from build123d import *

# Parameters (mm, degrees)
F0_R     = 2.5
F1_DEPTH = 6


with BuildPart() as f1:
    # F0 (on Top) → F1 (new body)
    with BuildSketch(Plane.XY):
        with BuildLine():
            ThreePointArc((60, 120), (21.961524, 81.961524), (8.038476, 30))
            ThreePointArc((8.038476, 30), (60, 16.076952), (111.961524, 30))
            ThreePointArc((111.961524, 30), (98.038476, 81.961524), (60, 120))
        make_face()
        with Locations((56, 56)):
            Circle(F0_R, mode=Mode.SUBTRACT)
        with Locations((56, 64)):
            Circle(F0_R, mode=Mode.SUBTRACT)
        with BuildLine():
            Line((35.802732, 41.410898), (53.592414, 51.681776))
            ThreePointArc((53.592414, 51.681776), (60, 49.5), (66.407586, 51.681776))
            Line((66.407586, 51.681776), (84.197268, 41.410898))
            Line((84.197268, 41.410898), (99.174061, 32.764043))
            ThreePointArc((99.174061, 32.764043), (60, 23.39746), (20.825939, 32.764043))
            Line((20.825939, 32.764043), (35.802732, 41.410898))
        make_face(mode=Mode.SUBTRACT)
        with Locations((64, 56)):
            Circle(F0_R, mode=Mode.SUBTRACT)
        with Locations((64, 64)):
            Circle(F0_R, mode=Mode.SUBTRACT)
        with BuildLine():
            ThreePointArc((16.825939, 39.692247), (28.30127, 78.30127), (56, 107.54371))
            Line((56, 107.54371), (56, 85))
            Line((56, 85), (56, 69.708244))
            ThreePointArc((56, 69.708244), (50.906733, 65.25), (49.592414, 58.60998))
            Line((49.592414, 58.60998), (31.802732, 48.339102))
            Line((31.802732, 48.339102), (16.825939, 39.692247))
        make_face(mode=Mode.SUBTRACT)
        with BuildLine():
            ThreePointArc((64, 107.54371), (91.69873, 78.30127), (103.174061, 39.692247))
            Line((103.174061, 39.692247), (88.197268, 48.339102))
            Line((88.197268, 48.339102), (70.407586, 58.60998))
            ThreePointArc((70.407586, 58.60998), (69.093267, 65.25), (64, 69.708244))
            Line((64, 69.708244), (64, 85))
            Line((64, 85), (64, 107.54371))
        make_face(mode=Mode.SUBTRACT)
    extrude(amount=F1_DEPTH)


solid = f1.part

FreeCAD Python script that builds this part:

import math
import FreeCAD as App
import Part
import Sketcher

V = App.Vector
Q = App.Units.Quantity

doc = App.newDocument("Part")
body = doc.addObject("PartDesign::Body", "Body")

sketch1 = body.newObject("Sketcher::SketchObject", "Sketch")
sketch1.AttachmentSupport = (doc.getObject("XY_Plane"), [""])
sketch1.MapMode = "FlatFace"
sketch1.addGeometry([
    Part.ArcOfCircle(Part.Circle(V(112, 30, 0), V(0, 0, 1), 103.9), math.radians(120), math.radians(180)),
    Part.ArcOfCircle(Part.Circle(V(60, 120, 0), V(0, 0, 1), 103.9), math.radians(-120), math.radians(-60)),
    Part.ArcOfCircle(Part.Circle(V(8, 30, 0), V(0, 0, 1), 103.9), math.radians(0), math.radians(60)),
    Part.Circle(V(56, 56, 0), V(0, 0, 1), 2.5),
    Part.Circle(V(56, 64, 0), V(0, 0, 1), 2.5),
    Part.LineSegment(V(20.8, 32.8, 0), V(35.8, 41.4, 0)),
    Part.LineSegment(V(35.8, 41.4, 0), V(53.6, 51.7, 0)),
    Part.ArcOfCircle(Part.Circle(V(60, 60, 0), V(0, 0, 1), 10.5), math.radians(-128), math.radians(-52)),
    Part.LineSegment(V(66.4, 51.7, 0), V(84.2, 41.4, 0)),
    Part.LineSegment(V(84.2, 41.4, 0), V(99.2, 32.8, 0)),
    Part.ArcOfCircle(Part.Circle(V(60, 110, 0), V(0, 0, 1), 86.6), math.radians(-117), math.radians(-63)),
    Part.Circle(V(64, 56, 0), V(0, 0, 1), 2.5),
    Part.Circle(V(64, 64, 0), V(0, 0, 1), 2.5),
    Part.LineSegment(V(31.8, 48.3, 0), V(16.8, 39.7, 0)),
    Part.ArcOfCircle(Part.Circle(V(103.3, 35, 0), V(0, 0, 1), 86.6), math.radians(123), math.radians(177)),
    Part.LineSegment(V(56, 107.5, 0), V(56, 69.7, 0)),
    Part.ArcOfCircle(Part.Circle(V(60, 60, 0), V(0, 0, 1), 10.5), math.radians(112), math.radians(188)),
    Part.LineSegment(V(49.6, 58.6, 0), V(31.8, 48.3, 0)),
    Part.LineSegment(V(64, 69.7, 0), V(64, 107.5, 0)),
    Part.ArcOfCircle(Part.Circle(V(16.7, 35, 0), V(0, 0, 1), 86.6), math.radians(3), math.radians(57)),
    Part.LineSegment(V(103.2, 39.7, 0), V(88.2, 48.3, 0)),
    Part.LineSegment(V(88.2, 48.3, 0), V(70.4, 58.6, 0)),
    Part.ArcOfCircle(Part.Circle(V(60, 60, 0), V(0, 0, 1), 10.5), math.radians(-8), math.radians(68)),
], False)
sketch1.addConstraint([
    Sketcher.Constraint("Coincident", 0, 2, 1, 1),
    Sketcher.Constraint("Coincident", 1, 2, 2, 1),
    Sketcher.Constraint("Coincident", 2, 2, 0, 1),
    Sketcher.Constraint("Coincident", 5, 2, 6, 1),
    Sketcher.Constraint("Coincident", 6, 2, 7, 1),
    Sketcher.Constraint("Coincident", 7, 2, 8, 1),
    Sketcher.Constraint("Coincident", 8, 2, 9, 1),
    Sketcher.Constraint("Coincident", 9, 2, 10, 2),
    Sketcher.Constraint("Coincident", 10, 1, 5, 1),
    Sketcher.Constraint("Coincident", 13, 2, 14, 2),
    Sketcher.Constraint("Coincident", 14, 1, 15, 1),
    Sketcher.Constraint("Coincident", 15, 2, 16, 1),
    Sketcher.Constraint("Coincident", 16, 2, 17, 1),
    Sketcher.Constraint("Coincident", 17, 2, 13, 1),
    Sketcher.Constraint("Coincident", 18, 2, 19, 2),
    Sketcher.Constraint("Coincident", 19, 1, 20, 1),
    Sketcher.Constraint("Coincident", 20, 2, 21, 1),
    Sketcher.Constraint("Coincident", 21, 2, 22, 1),
    Sketcher.Constraint("Coincident", 22, 2, 18, 1),
    Sketcher.Constraint("Vertical", 15),
    Sketcher.Constraint("Vertical", 18),
    Sketcher.Constraint("Coincident", 16, 3, 7, 3),
    Sketcher.Constraint("Coincident", 22, 3, 7, 3),
    Sketcher.Constraint("Coincident", 0, 2, 2, 3),
    Sketcher.Constraint("Coincident", 1, 2, 0, 3),
    Sketcher.Constraint("Equal", 3, 4),
    Sketcher.Constraint("Equal", 4, 11),
    Sketcher.Constraint("Equal", 11, 12),
    Sketcher.Constraint("Equal", 14, 19),
    Sketcher.Constraint("Equal", 16, 22),
    Sketcher.Constraint("Parallel", 5, 6),
    Sketcher.Constraint("Parallel", 8, 9),
    Sketcher.Constraint("Parallel", 6, 13),
    Sketcher.Constraint("Parallel", 13, 17),
    Sketcher.Constraint("Parallel", 9, 20),
    Sketcher.Constraint("Parallel", 20, 21),
    Sketcher.Constraint("Horizontal", 0, 3, 2, 3),
    Sketcher.Constraint("Horizontal", 3, 3, 11, 3),
    Sketcher.Constraint("Horizontal", 4, 3, 12, 3),
    Sketcher.Constraint("Horizontal", 14, 3, 19, 3),
    Sketcher.Constraint("Horizontal", 6, 2, 7, 2),
    Sketcher.Constraint("Horizontal", 5, 2, 8, 2),
    Sketcher.Constraint("Horizontal", 9, 2, 10, 1),
    Sketcher.Constraint("Horizontal", 14, 1, 18, 2),
    Sketcher.Constraint("Horizontal", 13, 2, 19, 1),
    Sketcher.Constraint("Horizontal", 17, 2, 20, 2),
    Sketcher.Constraint("Horizontal", 16, 2, 21, 2),
    Sketcher.Constraint("Horizontal", 15, 2, 22, 2),
    Sketcher.Constraint("Vertical", 3, 3, 4, 3),
    Sketcher.Constraint("Vertical", 1, 3, 7, 3),
    Sketcher.Constraint("Vertical", 11, 3, 12, 3),
    Sketcher.Constraint("Vertical", 4, 3, 14, 1),
    Sketcher.Constraint("Vertical", 12, 3, 18, 2),
    Sketcher.Constraint("Equal", 9, 13),
    Sketcher.Constraint("Equal", 8, 17),
    Sketcher.Constraint("Diameter", 3, 5.0),
    Sketcher.Constraint("Radius", 16, 10.5),
    Sketcher.Constraint("Angle", 5, Q("29.999999 deg")),
    Sketcher.Constraint("DistanceY", -1, 1, 0, 3, 30.000001),
    Sketcher.Constraint("DistanceX", -1, 1, 1, 3, 60.0),
    Sketcher.Constraint("DistanceX", -1, 1, 3, 3, 56.0),
    Sketcher.Constraint("DistanceY", -1, 1, 3, 3, 56.0),
    Sketcher.Constraint("DistanceY", -1, 1, 4, 3, 64.0),
    Sketcher.Constraint("DistanceY", -1, 1, 14, 3, 34.999999),
    Sketcher.Constraint("DistanceY", -1, 1, 16, 3, 60.0),
    Sketcher.Constraint("DistanceY", -1, 1, 2, 2, 120.0),
    Sketcher.Constraint("DistanceY", 0, 3, 1, 3, 90.000002),
    Sketcher.Constraint("DistanceX", 13, 2, 10, 1, 4.0),
    Sketcher.Constraint("Radius", 10, 86.602549),
    Sketcher.Constraint("Radius", 7, 10.500002),
    Sketcher.Constraint("Radius", 14, 86.602543),
    Sketcher.Constraint("DistanceY", -1, 1, 5, 2, 41.410898),
    Sketcher.Constraint("DistanceY", -1, 1, 17, 2, 48.339102),
    Sketcher.Constraint("DistanceY", 14, 1, 10, 3, 2.456299),
])
pad1 = body.newObject("PartDesign::Pad", "Pad")
pad1.Profile = sketch1
pad1.Length = 6

doc.recompute()
